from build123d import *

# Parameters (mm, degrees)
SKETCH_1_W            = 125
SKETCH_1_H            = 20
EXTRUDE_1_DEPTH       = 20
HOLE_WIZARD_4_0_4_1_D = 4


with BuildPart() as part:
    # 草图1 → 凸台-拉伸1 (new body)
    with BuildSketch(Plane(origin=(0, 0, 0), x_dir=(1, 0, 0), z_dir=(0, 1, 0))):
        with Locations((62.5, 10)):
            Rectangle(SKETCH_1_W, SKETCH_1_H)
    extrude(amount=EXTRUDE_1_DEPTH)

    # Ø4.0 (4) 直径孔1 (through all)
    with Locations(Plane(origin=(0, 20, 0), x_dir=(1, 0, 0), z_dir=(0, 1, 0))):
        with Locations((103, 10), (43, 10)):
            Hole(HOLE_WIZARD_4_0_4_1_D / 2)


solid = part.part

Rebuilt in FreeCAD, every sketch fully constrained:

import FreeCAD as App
import Part
import Sketcher

V = App.Vector


def add_polygon(sketch, points):
    """Adds a closed chain of lines whose ends are joined by coincident constraints."""
    first, n = sketch.GeometryCount, len(points)
    for a, b in zip(points, points[1:] + points[:1]):
        sketch.addGeometry(Part.LineSegment(App.Vector(*a, 0), App.Vector(*b, 0)), False)
    for i in range(n):
        sketch.addConstraint(Sketcher.Constraint("Coincident", first + i, 2, first + (i + 1) % n, 1))

doc = App.newDocument("Part")
body = doc.addObject("PartDesign::Body", "Body")

# Sketch on XZ plane
sketch1 = doc.addObject("Sketcher::SketchObject", "Sketch")
body.addObject(sketch1)
sketch1.AttachmentSupport = (doc.XZ_Plane, [""])
sketch1.MapMode = "FlatFace"
add_polygon(sketch1, [(0, -20), (0, 0), (125, 0), (125, -20)])  # lines 0-3
sketch1.addConstraint(Sketcher.Constraint("Vertical", 0))
sketch1.addConstraint(Sketcher.Constraint("Horizontal", 1))
sketch1.addConstraint(Sketcher.Constraint("Vertical", 2))
sketch1.addConstraint(Sketcher.Constraint("Horizontal", 3))
sketch1.addConstraint(Sketcher.Constraint("Coincident", 0, 2, -1, 1))
sketch1.addConstraint(Sketcher.Constraint("DistanceX", 1, 1, 1, 2, 125.0))
sketch1.addConstraint(Sketcher.Constraint("DistanceY", 0, 1, 0, 2, 20.0))
pad1 = doc.addObject("PartDesign::Pad", "Pad")
body.addObject(pad1)
pad1.Profile = sketch1
pad1.Length = 20
pad1.Reversed = True

# Sketch on XZ plane
sketch2 = doc.addObject("Sketcher::SketchObject", "Sketch001")
body.addObject(sketch2)
sketch2.AttachmentSupport = (doc.XZ_Plane, [""])
sketch2.MapMode = "FlatFace"
sketch2.AttachmentOffset = App.Placement(V(0, 0, -20), App.Rotation())
sketch2.addGeometry(Part.Circle(V(103, -10, 0), V(0, 0, 1), 2), False)
sketch2.addGeometry(Part.Circle(V(43, -10, 0), V(0, 0, 1), 2), False)
sketch2.addConstraint(Sketcher.Constraint("Equal", 0, 1))
sketch2.addConstraint(Sketcher.Constraint("Horizontal", 0, 3, 1, 3))
sketch2.addConstraint(Sketcher.Constraint("Diameter", 0, 4.0))
sketch2.addConstraint(Sketcher.Constraint("DistanceX", -1, 1, 0, 3, 103.0))
sketch2.addConstraint(Sketcher.Constraint("DistanceY", 0, 3, -1, 1, 10.0))
sketch2.addConstraint(Sketcher.Constraint("DistanceX", -1, 1, 1, 3, 43.0))
doc.recompute()
hole = doc.addObject("PartDesign::Hole", "Hole")
body.addObject(hole)
hole.Profile = sketch2
hole.ThreadType = "None"
hole.Diameter = 4
hole.DepthType = "ThroughAll"
hole.Reversed = True

doc.recompute()
